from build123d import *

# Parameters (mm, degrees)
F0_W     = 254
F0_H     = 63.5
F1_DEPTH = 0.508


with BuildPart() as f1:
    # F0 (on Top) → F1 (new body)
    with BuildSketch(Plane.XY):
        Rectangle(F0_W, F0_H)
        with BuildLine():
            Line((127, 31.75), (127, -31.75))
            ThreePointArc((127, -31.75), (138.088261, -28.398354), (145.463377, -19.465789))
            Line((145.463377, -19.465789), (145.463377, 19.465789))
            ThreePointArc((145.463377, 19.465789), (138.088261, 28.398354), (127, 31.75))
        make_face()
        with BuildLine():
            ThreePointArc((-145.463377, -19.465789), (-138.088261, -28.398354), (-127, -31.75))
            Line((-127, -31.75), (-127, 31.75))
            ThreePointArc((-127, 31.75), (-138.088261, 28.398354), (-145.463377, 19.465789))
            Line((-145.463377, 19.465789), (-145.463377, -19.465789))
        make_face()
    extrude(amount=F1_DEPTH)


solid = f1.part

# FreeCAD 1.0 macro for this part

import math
import FreeCAD as App
import Part
import Sketcher
Q = App.Units.Quantity

doc = App.newDocument("Part")
body = doc.addObject("PartDesign::Body", "Body")

# Sketch on XY plane
sketch1 = body.newObject("Sketcher::SketchObject", "Sketch")
sketch1.AttachmentSupport = (doc.getObject("XY_Plane"), [""])
sketch1.MapMode = "FlatFace"
sketch1.addGeometry([
    Part.LineSegment(App.Vector(-127, -32, 0), App.Vector(127, -32, 0)),  # 0
    Part.ArcOfCircle(Part.Circle(App.Vector(127, -12, 0), App.Vector(0, 0, 1), 20), math.radians(-90), math.radians(-23)),  # 1
    Part.LineSegment(App.Vector(145, -19, 0), App.Vector(145, 19, 0)),  # 2
    Part.ArcOfCircle(Part.Circle(App.Vector(127, 12, 0), App.Vector(0, 0, 1), 20), math.radians(23), math.radians(90)),  # 3
    Part.LineSegment(App.Vector(127, 32, 0), App.Vector(-127, 32, 0)),  # 4
    Part.ArcOfCircle(Part.Circle(App.Vector(-127, 12, 0), App.Vector(0, 0, 1), 20), math.radians(90), math.radians(157)),  # 5
    Part.LineSegment(App.Vector(-145, 19, 0), App.Vector(-145, -19, 0)),  # 6
    Part.ArcOfCircle(Part.Circle(App.Vector(-127, -12, 0), App.Vector(0, 0, 1), 20), math.radians(-157), math.radians(-90)),  # 7
], False)
sketch1.addConstraint([
    Sketcher.Constraint("Tangent", 0, 2, 1, 1),
    Sketcher.Constraint("Coincident", 1, 2, 2, 1),
    Sketcher.Constraint("Coincident", 2, 2, 3, 1),
    Sketcher.Constraint("Tangent", 3, 2, 4, 1),
    Sketcher.Constraint("Tangent", 4, 2, 5, 1),
    Sketcher.Constraint("Coincident", 5, 2, 6, 1),
    Sketcher.Constraint("Coincident", 6, 2, 7, 1),
    Sketcher.Constraint("Tangent", 7, 2, 0, 1),
    Sketcher.Constraint("Horizontal", 0),
    Sketcher.Constraint("Vertical", 2),
    Sketcher.Constraint("Horizontal", 4),
    Sketcher.Constraint("Vertical", 6),
    Sketcher.Constraint("Equal", 1, 3),
    Sketcher.Constraint("Equal", 3, 5),
    Sketcher.Constraint("Equal", 5, 7),
    Sketcher.Constraint("Symmetric", 1, 3, 5, 3, -1, 1),
    Sketcher.Constraint("Symmetric", 2, 2, 6, 2, -1, 1),
    Sketcher.Constraint("Horizontal", 2, 2, 5, 2),
    Sketcher.Constraint("DistanceX", 0, 1, 0, 2, Q("10 in")),
    Sketcher.Constraint("DistanceY", 0, 2, 3, 2, Q("2.5 in")),
    Sketcher.Constraint("Radius", 1, Q("20.017491 mm")),
    Sketcher.Constraint("DistanceY", 2, 1, 2, 2, Q("38.931578 mm")),
])
pad1 = body.newObject("PartDesign::Pad", "Pad")
pad1.Profile = sketch1
pad1.Length = Q("0.02 in")

doc.recompute()
